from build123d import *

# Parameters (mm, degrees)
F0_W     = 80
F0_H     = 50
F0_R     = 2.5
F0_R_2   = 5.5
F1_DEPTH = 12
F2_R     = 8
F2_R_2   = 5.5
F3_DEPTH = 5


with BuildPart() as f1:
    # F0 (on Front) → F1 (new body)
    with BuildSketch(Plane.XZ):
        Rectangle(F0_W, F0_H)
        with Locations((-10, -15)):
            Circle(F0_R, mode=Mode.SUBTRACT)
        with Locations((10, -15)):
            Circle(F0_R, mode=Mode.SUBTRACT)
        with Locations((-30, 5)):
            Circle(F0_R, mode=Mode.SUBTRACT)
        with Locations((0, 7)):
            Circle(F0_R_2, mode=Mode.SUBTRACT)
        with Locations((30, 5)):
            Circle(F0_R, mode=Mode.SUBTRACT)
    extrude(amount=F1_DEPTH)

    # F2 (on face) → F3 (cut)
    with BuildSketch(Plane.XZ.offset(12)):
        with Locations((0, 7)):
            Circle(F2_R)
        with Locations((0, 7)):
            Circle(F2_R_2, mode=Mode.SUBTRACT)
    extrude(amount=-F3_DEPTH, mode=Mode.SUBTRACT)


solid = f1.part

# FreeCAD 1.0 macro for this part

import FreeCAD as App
import Part
import Sketcher
Q = App.Units.Quantity


def add_polygon(sketch, points):
    """Adds a closed chain of lines whose ends are joined by coincident constraints."""
    first, n = sketch.GeometryCount, len(points)
    for a, b in zip(points, points[1:] + points[:1]):
        sketch.addGeometry(Part.LineSegment(App.Vector(*a, 0), App.Vector(*b, 0)), False)
    for i in range(n):
        sketch.addConstraint(Sketcher.Constraint("Coincident", first + i, 2, first + (i + 1) % n, 1))

doc = App.newDocument("Part")
params = doc.addObject("Spreadsheet::Sheet", "Params")
for row, (alias, value) in enumerate([
    ("sketch1_diameter", "5 mm"),
    ("sketch1_diameter2", "11 mm"),
    ("sketch1_width", "80 mm"),
    ("sketch1_height", "50 mm"),
    ("pad1_length", "12 mm"),
    ("sketch2_diameter", "16 mm"),
    ("sketch2_diameter2", "11 mm"),
    ("pocket1_length", "5 mm"),
], start=1):
    params.set(f"A{row}", alias)
    params.set(f"B{row}", "=" + value)
    params.setAlias(f"B{row}", alias)

body = doc.addObject("PartDesign::Body", "Body")

# Sketch on XZ plane
sketch1 = doc.addObject("Sketcher::SketchObject", "Sketch")
body.addObject(sketch1)
sketch1.AttachmentSupport = (doc.XZ_Plane, [""])
sketch1.MapMode = "FlatFace"
add_polygon(sketch1, [(-40, 25), (-40, -25), (40, -25), (40, 25)])  # lines 0-3
sketch1.addGeometry(Part.Circle(App.Vector(-10, -15, 0), App.Vector(0, 0, 1), 2.5), False)  # 4
sketch1.addGeometry(Part.Circle(App.Vector(10, -15, 0), App.Vector(0, 0, 1), 2.5), False)  # 5
sketch1.addGeometry(Part.Circle(App.Vector(-30, 5, 0), App.Vector(0, 0, 1), 2.5), False)  # 6
sketch1.addGeometry(Part.Circle(App.Vector(0, 7, 0), App.Vector(0, 0, 1), 5.5), False)  # 7
sketch1.addGeometry(Part.Circle(App.Vector(30, 5, 0), App.Vector(0, 0, 1), 2.5), False)  # 8
sketch1.addConstraint([
    Sketcher.Constraint("Vertical", 0),
    Sketcher.Constraint("Horizontal", 1),
    Sketcher.Constraint("Vertical", 2),
    Sketcher.Constraint("Horizontal", 3),
    Sketcher.Constraint("Equal", 4, 5),
    Sketcher.Constraint("Equal", 5, 6),
    Sketcher.Constraint("Equal", 6, 8),
    Sketcher.Constraint("Symmetric", 0, 2, 2, 2, -1, 1),
    Sketcher.Constraint("Symmetric", 4, 3, 5, 3, -2),
    Sketcher.Constraint("Symmetric", 6, 3, 8, 3, -2),
    Sketcher.Constraint("PointOnObject", 7, 3, -2),
    Sketcher.Constraint("Diameter", 4, Q("5 mm")),
    Sketcher.Constraint("Diameter", 7, Q("11 mm")),
    Sketcher.Constraint("DistanceX", 1, 1, 1, 2, Q("80 mm")),
    Sketcher.Constraint("DistanceY", 0, 2, 0, 1, Q("50 mm")),
    Sketcher.Constraint("DistanceX", 4, 3, -1, 1, Q("10 mm")),
    Sketcher.Constraint("DistanceY", 4, 3, -1, 1, Q("15 mm")),
    Sketcher.Constraint("DistanceX", 6, 3, -1, 1, Q("30 mm")),
    Sketcher.Constraint("DistanceY", -1, 1, 6, 3, Q("5 mm")),
    Sketcher.Constraint("DistanceY", -1, 1, 7, 3, Q("7 mm")),
])
sketch1.setExpression("Constraints[15]", "Params.sketch1_diameter")
sketch1.setExpression("Constraints[16]", "Params.sketch1_diameter2")
sketch1.setExpression("Constraints[17]", "Params.sketch1_width")
sketch1.setExpression("Constraints[18]", "Params.sketch1_height")
pad1 = doc.addObject("PartDesign::Pad", "Pad")
body.addObject(pad1)
pad1.Profile = sketch1
pad1.setExpression("Length", "Params.pad1_length")

# Sketch on XZ plane
sketch2 = doc.addObject("Sketcher::SketchObject", "Sketch001")
body.addObject(sketch2)
sketch2.AttachmentSupport = (doc.XZ_Plane, [""])
sketch2.MapMode = "FlatFace"
sketch2.AttachmentOffset = App.Placement(App.Vector(0, 0, 12), App.Rotation())
sketch2.addGeometry([
    Part.Circle(App.Vector(0, 7, 0), App.Vector(0, 0, 1), 8),
    Part.Circle(App.Vector(0, 7, 0), App.Vector(0, 0, 1), 6),
], False)
sketch2.addConstraint([
    Sketcher.Constraint("Coincident", 1, 3, 0, 3),
    Sketcher.Constraint("PointOnObject", 0, 3, -2),
    Sketcher.Constraint("Diameter", 0, Q("16 mm")),
    Sketcher.Constraint("Diameter", 1, Q("11 mm")),
    Sketcher.Constraint("DistanceY", -1, 1, 0, 3, Q("7 mm")),
])
sketch2.setExpression("Constraints[2]", "Params.sketch2_diameter")
sketch2.setExpression("Constraints[3]", "Params.sketch2_diameter2")
pocket1 = doc.addObject("PartDesign::Pocket", "Pocket")
body.addObject(pocket1)
pocket1.Profile = sketch2
pocket1.setExpression("Length", "Params.pocket1_length")

doc.recompute()
